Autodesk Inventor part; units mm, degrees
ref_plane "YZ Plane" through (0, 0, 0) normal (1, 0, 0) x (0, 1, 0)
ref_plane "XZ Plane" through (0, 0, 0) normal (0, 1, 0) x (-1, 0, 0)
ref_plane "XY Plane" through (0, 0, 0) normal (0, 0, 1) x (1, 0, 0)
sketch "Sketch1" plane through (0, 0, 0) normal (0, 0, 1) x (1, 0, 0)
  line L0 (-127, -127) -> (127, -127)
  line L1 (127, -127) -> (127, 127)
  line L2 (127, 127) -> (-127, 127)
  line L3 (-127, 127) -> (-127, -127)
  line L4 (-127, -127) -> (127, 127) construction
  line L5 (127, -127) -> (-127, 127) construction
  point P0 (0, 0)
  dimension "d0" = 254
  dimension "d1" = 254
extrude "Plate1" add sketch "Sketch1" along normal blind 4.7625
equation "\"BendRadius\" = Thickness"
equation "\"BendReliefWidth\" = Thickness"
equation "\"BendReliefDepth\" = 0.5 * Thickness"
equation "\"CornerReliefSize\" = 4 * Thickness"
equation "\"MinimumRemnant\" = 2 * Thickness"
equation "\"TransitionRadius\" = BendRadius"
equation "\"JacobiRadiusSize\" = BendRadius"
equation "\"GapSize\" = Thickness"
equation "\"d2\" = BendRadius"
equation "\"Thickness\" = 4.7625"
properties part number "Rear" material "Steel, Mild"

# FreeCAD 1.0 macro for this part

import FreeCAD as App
import Part
import Sketcher
Q = App.Units.Quantity


def add_polygon(sketch, points):
    """Adds a closed chain of lines whose ends are joined by coincident constraints."""
    first, n = sketch.GeometryCount, len(points)
    for a, b in zip(points, points[1:] + points[:1]):
        sketch.addGeometry(Part.LineSegment(App.Vector(*a, 0), App.Vector(*b, 0)), False)
    for i in range(n):
        sketch.addConstraint(Sketcher.Constraint("Coincident", first + i, 2, first + (i + 1) % n, 1))

doc = App.newDocument("Part")
body = doc.addObject("PartDesign::Body", "Body")

# Sketch on XY plane
sketch1 = body.newObject("Sketcher::SketchObject", "Sketch")
sketch1.AttachmentSupport = (doc.getObject("XY_Plane"), [""])
sketch1.MapMode = "FlatFace"
add_polygon(sketch1, [(-127, 127), (-127, -127), (127, -127), (127, 127)])  # lines 0-3
sketch1.addConstraint([
    Sketcher.Constraint("Vertical", 0),
    Sketcher.Constraint("Horizontal", 1),
    Sketcher.Constraint("Vertical", 2),
    Sketcher.Constraint("Horizontal", 3),
    Sketcher.Constraint("Symmetric", 0, 2, 2, 2, -1, 1),
    Sketcher.Constraint("Equal", 3, 0),
    Sketcher.Constraint("DistanceX", 1, 1, 1, 2, Q("10 in")),
])
pad1 = body.newObject("PartDesign::Pad", "Pad")
pad1.Profile = sketch1
pad1.Length = Q("0.1875 in")

doc.recompute()
